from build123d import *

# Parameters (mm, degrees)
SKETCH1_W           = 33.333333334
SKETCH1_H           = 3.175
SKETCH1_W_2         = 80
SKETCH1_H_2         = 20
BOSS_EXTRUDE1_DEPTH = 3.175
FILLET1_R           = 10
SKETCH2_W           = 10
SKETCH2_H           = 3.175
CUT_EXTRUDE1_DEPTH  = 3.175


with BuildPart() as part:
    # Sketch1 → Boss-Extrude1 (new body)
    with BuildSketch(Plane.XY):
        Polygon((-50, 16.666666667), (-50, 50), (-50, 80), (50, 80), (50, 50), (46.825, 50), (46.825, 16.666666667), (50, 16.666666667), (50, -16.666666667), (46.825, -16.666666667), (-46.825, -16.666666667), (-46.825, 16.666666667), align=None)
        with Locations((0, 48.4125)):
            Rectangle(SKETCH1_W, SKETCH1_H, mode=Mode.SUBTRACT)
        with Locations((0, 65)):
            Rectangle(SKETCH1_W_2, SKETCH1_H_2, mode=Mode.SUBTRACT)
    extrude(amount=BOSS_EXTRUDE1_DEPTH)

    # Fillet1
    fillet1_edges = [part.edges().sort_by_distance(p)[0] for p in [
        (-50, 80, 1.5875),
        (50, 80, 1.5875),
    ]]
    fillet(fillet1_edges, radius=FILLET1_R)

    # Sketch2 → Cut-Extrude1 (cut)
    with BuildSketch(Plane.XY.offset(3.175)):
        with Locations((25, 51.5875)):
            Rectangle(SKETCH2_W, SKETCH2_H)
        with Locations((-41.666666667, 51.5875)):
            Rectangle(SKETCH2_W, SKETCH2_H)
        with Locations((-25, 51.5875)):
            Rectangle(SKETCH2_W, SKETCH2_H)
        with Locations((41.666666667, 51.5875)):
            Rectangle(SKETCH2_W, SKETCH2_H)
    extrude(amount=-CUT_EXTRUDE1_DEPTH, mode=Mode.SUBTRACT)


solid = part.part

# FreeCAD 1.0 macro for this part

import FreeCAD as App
import Part
import Sketcher
from FreeCAD import Vector


def edges_at(feature, points):
    """Names of the edges that pass closest to the given points."""
    edges = feature.Shape.Edges
    near = lambda p: min(range(len(edges)), key=lambda i: edges[i].distToShape(Part.Vertex(*p))[0])
    return sorted({f"Edge{near(p) + 1}" for p in points})

doc = App.newDocument("Part")
body = doc.addObject("PartDesign::Body", "Body")

sketch1 = doc.addObject("Sketcher::SketchObject", "Sketch")
body.addObject(sketch1)
sketch1.AttachmentSupport = (doc.XY_Plane, [""])
sketch1.MapMode = "FlatFace"
sketch1.addGeometry([
    Part.LineSegment(Vector(-50, 80, 0), Vector(-50, 16.7, 0)),
    Part.LineSegment(Vector(-50, 16.7, 0), Vector(-46.8, 16.7, 0)),
    Part.LineSegment(Vector(-46.8, 16.7, 0), Vector(-46.8, -16.7, 0)),
    Part.LineSegment(Vector(-46.8, -16.7, 0), Vector(50, -16.7, 0)),
    Part.LineSegment(Vector(50, -16.7, 0), Vector(50, 16.7, 0)),
    Part.LineSegment(Vector(50, 16.7, 0), Vector(46.8, 16.7, 0)),
    Part.LineSegment(Vector(46.8, 16.7, 0), Vector(46.8, 50, 0)),
    Part.LineSegment(Vector(46.8, 50, 0), Vector(50, 50, 0)),
    Part.LineSegment(Vector(50, 50, 0), Vector(50, 80, 0)),
    Part.LineSegment(Vector(50, 80, 0), Vector(-50, 80, 0)),
    Part.LineSegment(Vector(-16.7, 46.8, 0), Vector(-16.7, 50, 0)),
    Part.LineSegment(Vector(-16.7, 50, 0), Vector(16.7, 50, 0)),
    Part.LineSegment(Vector(16.7, 50, 0), Vector(16.7, 46.8, 0)),
    Part.LineSegment(Vector(16.7, 46.8, 0), Vector(-16.7, 46.8, 0)),
    Part.LineSegment(Vector(-40, 55, 0), Vector(-40, 75, 0)),
    Part.LineSegment(Vector(-40, 75, 0), Vector(40, 75, 0)),
    Part.LineSegment(Vector(40, 75, 0), Vector(40, 55, 0)),
    Part.LineSegment(Vector(40, 55, 0), Vector(-40, 55, 0)),
], False)
sketch1.addConstraint([
    Sketcher.Constraint("Coincident", 0, 2, 1, 1),
    Sketcher.Constraint("Coincident", 1, 2, 2, 1),
    Sketcher.Constraint("Coincident", 2, 2, 3, 1),
    Sketcher.Constraint("Coincident", 3, 2, 4, 1),
    Sketcher.Constraint("Coincident", 4, 2, 5, 1),
    Sketcher.Constraint("Coincident", 5, 2, 6, 1),
    Sketcher.Constraint("Coincident", 6, 2, 7, 1),
    Sketcher.Constraint("Coincident", 7, 2, 8, 1),
    Sketcher.Constraint("Coincident", 8, 2, 9, 1),
    Sketcher.Constraint("Coincident", 9, 2, 0, 1),
    Sketcher.Constraint("Coincident", 10, 2, 11, 1),
    Sketcher.Constraint("Coincident", 11, 2, 12, 1),
    Sketcher.Constraint("Coincident", 12, 2, 13, 1),
    Sketcher.Constraint("Coincident", 13, 2, 10, 1),
    Sketcher.Constraint("Coincident", 14, 2, 15, 1),
    Sketcher.Constraint("Coincident", 15, 2, 16, 1),
    Sketcher.Constraint("Coincident", 16, 2, 17, 1),
    Sketcher.Constraint("Coincident", 17, 2, 14, 1),
    Sketcher.Constraint("Vertical", 0),
    Sketcher.Constraint("Horizontal", 1),
    Sketcher.Constraint("Vertical", 2),
    Sketcher.Constraint("Horizontal", 3),
    Sketcher.Constraint("Vertical", 4),
    Sketcher.Constraint("Horizontal", 5),
    Sketcher.Constraint("Vertical", 6),
    Sketcher.Constraint("Horizontal", 7),
    Sketcher.Constraint("Vertical", 8),
    Sketcher.Constraint("Horizontal", 9),
    Sketcher.Constraint("Vertical", 10),
    Sketcher.Constraint("Horizontal", 11),
    Sketcher.Constraint("Vertical", 12),
    Sketcher.Constraint("Horizontal", 13),
    Sketcher.Constraint("Vertical", 14),
    Sketcher.Constraint("Horizontal", 15),
    Sketcher.Constraint("Vertical", 16),
    Sketcher.Constraint("Horizontal", 17),
    Sketcher.Constraint("Symmetric", 0, 2, 3, 2, -1, 1),
    Sketcher.Constraint("Symmetric", 2, 2, 5, 2, -1, 1),
    Sketcher.Constraint("Horizontal", 7, 2, 10, 2),
    Sketcher.Constraint("Vertical", 4, 2, 7, 2),
    Sketcher.Constraint("Equal", 13, 2),
    Sketcher.Constraint("Equal", 4, 6),
    Sketcher.Constraint("Equal", 7, 10),
    Sketcher.Constraint("DistanceX", 9, 2, 9, 1, 100.0),
    Sketcher.Constraint("DistanceX", 15, 1, 15, 2, 80.0),
    Sketcher.Constraint("DistanceY", 8, 1, 8, 2, 30.0),
    Sketcher.Constraint("DistanceY", 14, 1, 14, 2, 20.0),
    Sketcher.Constraint("DistanceY", -1, 1, 6, 2, 50.0),
    Sketcher.Constraint("DistanceX", 14, 2, -1, 1, 40.0),
    Sketcher.Constraint("DistanceY", -1, 1, 14, 2, 75.0),
    Sketcher.Constraint("DistanceX", 1, 1, 1, 2, 3.175),
    Sketcher.Constraint("DistanceX", 10, 2, -1, 1, 16.666667),
])
pad1 = doc.addObject("PartDesign::Pad", "Pad")
body.addObject(pad1)
pad1.Profile = sketch1
pad1.Length = 3.175
doc.recompute()

fillet = doc.addObject("PartDesign::Fillet", "Fillet")
body.addObject(fillet)
fillet.Base = (pad1, edges_at(pad1, [(-50, 80, 1.587), (50, 80, 1.587)]))
fillet.Radius = 10

sketch2 = doc.addObject("Sketcher::SketchObject", "Sketch001")
body.addObject(sketch2)
sketch2.AttachmentSupport = (doc.XY_Plane, [""])
sketch2.MapMode = "FlatFace"
sketch2.AttachmentOffset = App.Placement(Vector(0, 0, 3.175), App.Rotation())
sketch2.addGeometry([
    Part.LineSegment(Vector(20, 53.2, 0), Vector(20, 50, 0)),
    Part.LineSegment(Vector(20, 50, 0), Vector(30, 50, 0)),
    Part.LineSegment(Vector(30, 50, 0), Vector(30, 53.2, 0)),
    Part.LineSegment(Vector(30, 53.2, 0), Vector(20, 53.2, 0)),
    Part.LineSegment(Vector(-46.7, 53.2, 0), Vector(-46.7, 50, 0)),
    Part.LineSegment(Vector(-46.7, 50, 0), Vector(-36.7, 50, 0)),
    Part.LineSegment(Vector(-36.7, 50, 0), Vector(-36.7, 53.2, 0)),
    Part.LineSegment(Vector(-36.7, 53.2, 0), Vector(-46.7, 53.2, 0)),
    Part.LineSegment(Vector(-30, 53.2, 0), Vector(-30, 50, 0)),
    Part.LineSegment(Vector(-30, 50, 0), Vector(-20, 50, 0)),
    Part.LineSegment(Vector(-20, 50, 0), Vector(-20, 53.2, 0)),
    Part.LineSegment(Vector(-20, 53.2, 0), Vector(-30, 53.2, 0)),
    Part.LineSegment(Vector(36.7, 53.2, 0), Vector(36.7, 50, 0)),
    Part.LineSegment(Vector(36.7, 50, 0), Vector(46.7, 50, 0)),
    Part.LineSegment(Vector(46.7, 50, 0), Vector(46.7, 53.2, 0)),
    Part.LineSegment(Vector(46.7, 53.2, 0), Vector(36.7, 53.2, 0)),
], False)
sketch2.addConstraint([
    Sketcher.Constraint("Coincident", 0, 2, 1, 1),
    Sketcher.Constraint("Coincident", 1, 2, 2, 1),
    Sketcher.Constraint("Coincident", 2, 2, 3, 1),
    Sketcher.Constraint("Coincident", 3, 2, 0, 1),
    Sketcher.Constraint("Coincident", 4, 2, 5, 1),
    Sketcher.Constraint("Coincident", 5, 2, 6, 1),
    Sketcher.Constraint("Coincident", 6, 2, 7, 1),
    Sketcher.Constraint("Coincident", 7, 2, 4, 1),
    Sketcher.Constraint("Coincident", 8, 2, 9, 1),
    Sketcher.Constraint("Coincident", 9, 2, 10, 1),
    Sketcher.Constraint("Coincident", 10, 2, 11, 1),
    Sketcher.Constraint("Coincident", 11, 2, 8, 1),
    Sketcher.Constraint("Coincident", 12, 2, 13, 1),
    Sketcher.Constraint("Coincident", 13, 2, 14, 1),
    Sketcher.Constraint("Coincident", 14, 2, 15, 1),
    Sketcher.Constraint("Coincident", 15, 2, 12, 1),
    Sketcher.Constraint("Vertical", 0),
    Sketcher.Constraint("Horizontal", 1),
    Sketcher.Constraint("Vertical", 2),
    Sketcher.Constraint("Horizontal", 3),
    Sketcher.Constraint("Vertical", 4),
    Sketcher.Constraint("Horizontal", 5),
    Sketcher.Constraint("Vertical", 6),
    Sketcher.Constraint("Horizontal", 7),
    Sketcher.Constraint("Vertical", 8),
    Sketcher.Constraint("Horizontal", 9),
    Sketcher.Constraint("Vertical", 10),
    Sketcher.Constraint("Horizontal", 11),
    Sketcher.Constraint("Vertical", 12),
    Sketcher.Constraint("Horizontal", 13),
    Sketcher.Constraint("Vertical", 14),
    Sketcher.Constraint("Horizontal", 15),
    Sketcher.Constraint("Symmetric", 1, 2, 8, 2, -2),
    Sketcher.Constraint("Symmetric", 3, 2, 10, 2, -2),
    Sketcher.Constraint("Symmetric", 5, 2, 12, 2, -2),
    Sketcher.Constraint("Symmetric", 7, 2, 14, 2, -2),
    Sketcher.Constraint("Horizontal", 1, 2, 4, 2),
    Sketcher.Constraint("Horizontal", 3, 2, 6, 2),
    Sketcher.Constraint("Equal", 3, 5),
    Sketcher.Constraint("DistanceX", 1, 1, 1, 2, 10.0),
    Sketcher.Constraint("DistanceX", -1, 1, 0, 2, 20.0),
    Sketcher.Constraint("DistanceY", -1, 1, 0, 2, 50.0),
    Sketcher.Constraint("DistanceY", 0, 2, 0, 1, 3.175),
    Sketcher.Constraint("DistanceX", 4, 2, -1, 1, 46.666667),
])
pocket1 = doc.addObject("PartDesign::Pocket", "Pocket")
body.addObject(pocket1)
pocket1.Profile = sketch2
pocket1.Length = 3.175

doc.recompute()
